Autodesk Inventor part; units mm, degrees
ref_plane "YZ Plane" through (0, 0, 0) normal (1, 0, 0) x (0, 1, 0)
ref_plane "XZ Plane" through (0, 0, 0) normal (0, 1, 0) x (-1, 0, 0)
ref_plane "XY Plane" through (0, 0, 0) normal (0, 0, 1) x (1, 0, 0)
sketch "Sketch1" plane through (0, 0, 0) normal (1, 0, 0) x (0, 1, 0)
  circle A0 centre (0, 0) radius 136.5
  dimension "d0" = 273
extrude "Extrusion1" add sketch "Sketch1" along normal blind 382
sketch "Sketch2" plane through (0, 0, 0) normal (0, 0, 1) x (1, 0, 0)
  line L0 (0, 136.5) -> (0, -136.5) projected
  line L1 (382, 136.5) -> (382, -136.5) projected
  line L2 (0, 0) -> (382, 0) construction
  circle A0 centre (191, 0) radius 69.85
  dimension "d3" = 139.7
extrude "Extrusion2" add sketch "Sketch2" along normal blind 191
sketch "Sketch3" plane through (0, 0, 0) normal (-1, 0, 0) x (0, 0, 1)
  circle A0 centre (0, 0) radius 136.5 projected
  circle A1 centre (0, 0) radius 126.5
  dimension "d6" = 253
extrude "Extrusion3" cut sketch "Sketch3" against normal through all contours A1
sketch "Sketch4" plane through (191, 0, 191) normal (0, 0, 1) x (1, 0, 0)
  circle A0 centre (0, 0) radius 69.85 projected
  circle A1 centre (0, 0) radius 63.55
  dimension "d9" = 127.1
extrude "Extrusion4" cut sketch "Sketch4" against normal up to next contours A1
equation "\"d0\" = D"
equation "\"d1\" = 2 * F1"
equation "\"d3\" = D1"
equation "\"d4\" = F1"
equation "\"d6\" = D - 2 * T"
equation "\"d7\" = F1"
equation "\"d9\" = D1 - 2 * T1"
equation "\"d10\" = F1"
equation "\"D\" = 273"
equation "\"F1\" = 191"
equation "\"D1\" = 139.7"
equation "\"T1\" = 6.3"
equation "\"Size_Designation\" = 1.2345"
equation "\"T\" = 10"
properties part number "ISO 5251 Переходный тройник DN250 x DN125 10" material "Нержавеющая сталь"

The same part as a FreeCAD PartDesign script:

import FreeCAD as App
import Part
import Sketcher

doc = App.newDocument("Part")
params = doc.addObject("Spreadsheet::Sheet", "Params")
for row, (alias, value) in enumerate([
    ("sketch1_diameter", "273 mm"),
    ("pad1_length", "382 mm"),
    ("sketch2_diameter", "139.7 mm"),
    ("pad2_length", "191 mm"),
    ("sketch3_diameter", "253 mm"),
    ("sketch4_diameter", "127.1 mm"),
], start=1):
    params.set(f"A{row}", alias)
    params.set(f"B{row}", "=" + value)
    params.setAlias(f"B{row}", alias)

body = doc.addObject("PartDesign::Body", "Body")

# Sketch on YZ plane
sketch1 = body.newObject("Sketcher::SketchObject", "Sketch")
sketch1.AttachmentSupport = (doc.getObject("YZ_Plane"), [""])
sketch1.MapMode = "FlatFace"
sketch1.addGeometry(Part.Circle(App.Vector(0, 0, 0), App.Vector(0, 0, 1), 136), False)
sketch1.addConstraint(Sketcher.Constraint("Coincident", 0, 3, -1, 1))
sketch1.addConstraint(Sketcher.Constraint("Diameter", 0, 273.0))
sketch1.setExpression("Constraints[1]", "Params.sketch1_diameter")
pad1 = body.newObject("PartDesign::Pad", "Pad")
pad1.Profile = sketch1
pad1.setExpression("Length", "Params.pad1_length")

# Sketch on XY plane
sketch2 = body.newObject("Sketcher::SketchObject", "Sketch001")
sketch2.AttachmentSupport = (doc.getObject("XY_Plane"), [""])
sketch2.MapMode = "FlatFace"
sketch2.addGeometry(Part.Circle(App.Vector(191, 0, 0), App.Vector(0, 0, 1), 70), False)
sketch2.addConstraint(Sketcher.Constraint("PointOnObject", 0, 3, -1))
sketch2.addConstraint(Sketcher.Constraint("Diameter", 0, 139.7))
sketch2.addConstraint(Sketcher.Constraint("DistanceX", -1, 1, 0, 3, 191.0))
sketch2.setExpression("Constraints[1]", "Params.sketch2_diameter")
pad2 = body.newObject("PartDesign::Pad", "Pad001")
pad2.Profile = sketch2
pad2.setExpression("Length", "Params.pad2_length")

# Sketch on YZ plane
sketch3 = body.newObject("Sketcher::SketchObject", "Sketch002")
sketch3.AttachmentSupport = (doc.getObject("YZ_Plane"), [""])
sketch3.MapMode = "FlatFace"
sketch3.addGeometry(Part.Circle(App.Vector(0, 0, 0), App.Vector(0, 0, 1), 126), False)
sketch3.addConstraint(Sketcher.Constraint("Coincident", 0, 3, -1, 1))
sketch3.addConstraint(Sketcher.Constraint("Diameter", 0, 253.0))
sketch3.setExpression("Constraints[1]", "Params.sketch3_diameter")
pocket1 = body.newObject("PartDesign::Pocket", "Pocket")
pocket1.Profile = sketch3
pocket1.Type = "ThroughAll"
pocket1.Reversed = True

# Sketch on XY plane
sketch4 = body.newObject("Sketcher::SketchObject", "Sketch003")
sketch4.AttachmentSupport = (doc.getObject("XY_Plane"), [""])
sketch4.MapMode = "FlatFace"
sketch4.AttachmentOffset = App.Placement(App.Vector(0, 0, 191), App.Rotation())
sketch4.addGeometry(Part.Circle(App.Vector(191, 0, 0), App.Vector(0, 0, 1), 64), False)
sketch4.addConstraint(Sketcher.Constraint("PointOnObject", 0, 3, -1))
sketch4.addConstraint(Sketcher.Constraint("Diameter", 0, 127.1))
sketch4.addConstraint(Sketcher.Constraint("DistanceX", -1, 1, 0, 3, 191.0))
sketch4.setExpression("Constraints[1]", "Params.sketch4_diameter")
pocket2 = body.newObject("PartDesign::Pocket", "Pocket001")
pocket2.Profile = sketch4
pocket2.Type = "UpToFirst"

doc.recompute()
